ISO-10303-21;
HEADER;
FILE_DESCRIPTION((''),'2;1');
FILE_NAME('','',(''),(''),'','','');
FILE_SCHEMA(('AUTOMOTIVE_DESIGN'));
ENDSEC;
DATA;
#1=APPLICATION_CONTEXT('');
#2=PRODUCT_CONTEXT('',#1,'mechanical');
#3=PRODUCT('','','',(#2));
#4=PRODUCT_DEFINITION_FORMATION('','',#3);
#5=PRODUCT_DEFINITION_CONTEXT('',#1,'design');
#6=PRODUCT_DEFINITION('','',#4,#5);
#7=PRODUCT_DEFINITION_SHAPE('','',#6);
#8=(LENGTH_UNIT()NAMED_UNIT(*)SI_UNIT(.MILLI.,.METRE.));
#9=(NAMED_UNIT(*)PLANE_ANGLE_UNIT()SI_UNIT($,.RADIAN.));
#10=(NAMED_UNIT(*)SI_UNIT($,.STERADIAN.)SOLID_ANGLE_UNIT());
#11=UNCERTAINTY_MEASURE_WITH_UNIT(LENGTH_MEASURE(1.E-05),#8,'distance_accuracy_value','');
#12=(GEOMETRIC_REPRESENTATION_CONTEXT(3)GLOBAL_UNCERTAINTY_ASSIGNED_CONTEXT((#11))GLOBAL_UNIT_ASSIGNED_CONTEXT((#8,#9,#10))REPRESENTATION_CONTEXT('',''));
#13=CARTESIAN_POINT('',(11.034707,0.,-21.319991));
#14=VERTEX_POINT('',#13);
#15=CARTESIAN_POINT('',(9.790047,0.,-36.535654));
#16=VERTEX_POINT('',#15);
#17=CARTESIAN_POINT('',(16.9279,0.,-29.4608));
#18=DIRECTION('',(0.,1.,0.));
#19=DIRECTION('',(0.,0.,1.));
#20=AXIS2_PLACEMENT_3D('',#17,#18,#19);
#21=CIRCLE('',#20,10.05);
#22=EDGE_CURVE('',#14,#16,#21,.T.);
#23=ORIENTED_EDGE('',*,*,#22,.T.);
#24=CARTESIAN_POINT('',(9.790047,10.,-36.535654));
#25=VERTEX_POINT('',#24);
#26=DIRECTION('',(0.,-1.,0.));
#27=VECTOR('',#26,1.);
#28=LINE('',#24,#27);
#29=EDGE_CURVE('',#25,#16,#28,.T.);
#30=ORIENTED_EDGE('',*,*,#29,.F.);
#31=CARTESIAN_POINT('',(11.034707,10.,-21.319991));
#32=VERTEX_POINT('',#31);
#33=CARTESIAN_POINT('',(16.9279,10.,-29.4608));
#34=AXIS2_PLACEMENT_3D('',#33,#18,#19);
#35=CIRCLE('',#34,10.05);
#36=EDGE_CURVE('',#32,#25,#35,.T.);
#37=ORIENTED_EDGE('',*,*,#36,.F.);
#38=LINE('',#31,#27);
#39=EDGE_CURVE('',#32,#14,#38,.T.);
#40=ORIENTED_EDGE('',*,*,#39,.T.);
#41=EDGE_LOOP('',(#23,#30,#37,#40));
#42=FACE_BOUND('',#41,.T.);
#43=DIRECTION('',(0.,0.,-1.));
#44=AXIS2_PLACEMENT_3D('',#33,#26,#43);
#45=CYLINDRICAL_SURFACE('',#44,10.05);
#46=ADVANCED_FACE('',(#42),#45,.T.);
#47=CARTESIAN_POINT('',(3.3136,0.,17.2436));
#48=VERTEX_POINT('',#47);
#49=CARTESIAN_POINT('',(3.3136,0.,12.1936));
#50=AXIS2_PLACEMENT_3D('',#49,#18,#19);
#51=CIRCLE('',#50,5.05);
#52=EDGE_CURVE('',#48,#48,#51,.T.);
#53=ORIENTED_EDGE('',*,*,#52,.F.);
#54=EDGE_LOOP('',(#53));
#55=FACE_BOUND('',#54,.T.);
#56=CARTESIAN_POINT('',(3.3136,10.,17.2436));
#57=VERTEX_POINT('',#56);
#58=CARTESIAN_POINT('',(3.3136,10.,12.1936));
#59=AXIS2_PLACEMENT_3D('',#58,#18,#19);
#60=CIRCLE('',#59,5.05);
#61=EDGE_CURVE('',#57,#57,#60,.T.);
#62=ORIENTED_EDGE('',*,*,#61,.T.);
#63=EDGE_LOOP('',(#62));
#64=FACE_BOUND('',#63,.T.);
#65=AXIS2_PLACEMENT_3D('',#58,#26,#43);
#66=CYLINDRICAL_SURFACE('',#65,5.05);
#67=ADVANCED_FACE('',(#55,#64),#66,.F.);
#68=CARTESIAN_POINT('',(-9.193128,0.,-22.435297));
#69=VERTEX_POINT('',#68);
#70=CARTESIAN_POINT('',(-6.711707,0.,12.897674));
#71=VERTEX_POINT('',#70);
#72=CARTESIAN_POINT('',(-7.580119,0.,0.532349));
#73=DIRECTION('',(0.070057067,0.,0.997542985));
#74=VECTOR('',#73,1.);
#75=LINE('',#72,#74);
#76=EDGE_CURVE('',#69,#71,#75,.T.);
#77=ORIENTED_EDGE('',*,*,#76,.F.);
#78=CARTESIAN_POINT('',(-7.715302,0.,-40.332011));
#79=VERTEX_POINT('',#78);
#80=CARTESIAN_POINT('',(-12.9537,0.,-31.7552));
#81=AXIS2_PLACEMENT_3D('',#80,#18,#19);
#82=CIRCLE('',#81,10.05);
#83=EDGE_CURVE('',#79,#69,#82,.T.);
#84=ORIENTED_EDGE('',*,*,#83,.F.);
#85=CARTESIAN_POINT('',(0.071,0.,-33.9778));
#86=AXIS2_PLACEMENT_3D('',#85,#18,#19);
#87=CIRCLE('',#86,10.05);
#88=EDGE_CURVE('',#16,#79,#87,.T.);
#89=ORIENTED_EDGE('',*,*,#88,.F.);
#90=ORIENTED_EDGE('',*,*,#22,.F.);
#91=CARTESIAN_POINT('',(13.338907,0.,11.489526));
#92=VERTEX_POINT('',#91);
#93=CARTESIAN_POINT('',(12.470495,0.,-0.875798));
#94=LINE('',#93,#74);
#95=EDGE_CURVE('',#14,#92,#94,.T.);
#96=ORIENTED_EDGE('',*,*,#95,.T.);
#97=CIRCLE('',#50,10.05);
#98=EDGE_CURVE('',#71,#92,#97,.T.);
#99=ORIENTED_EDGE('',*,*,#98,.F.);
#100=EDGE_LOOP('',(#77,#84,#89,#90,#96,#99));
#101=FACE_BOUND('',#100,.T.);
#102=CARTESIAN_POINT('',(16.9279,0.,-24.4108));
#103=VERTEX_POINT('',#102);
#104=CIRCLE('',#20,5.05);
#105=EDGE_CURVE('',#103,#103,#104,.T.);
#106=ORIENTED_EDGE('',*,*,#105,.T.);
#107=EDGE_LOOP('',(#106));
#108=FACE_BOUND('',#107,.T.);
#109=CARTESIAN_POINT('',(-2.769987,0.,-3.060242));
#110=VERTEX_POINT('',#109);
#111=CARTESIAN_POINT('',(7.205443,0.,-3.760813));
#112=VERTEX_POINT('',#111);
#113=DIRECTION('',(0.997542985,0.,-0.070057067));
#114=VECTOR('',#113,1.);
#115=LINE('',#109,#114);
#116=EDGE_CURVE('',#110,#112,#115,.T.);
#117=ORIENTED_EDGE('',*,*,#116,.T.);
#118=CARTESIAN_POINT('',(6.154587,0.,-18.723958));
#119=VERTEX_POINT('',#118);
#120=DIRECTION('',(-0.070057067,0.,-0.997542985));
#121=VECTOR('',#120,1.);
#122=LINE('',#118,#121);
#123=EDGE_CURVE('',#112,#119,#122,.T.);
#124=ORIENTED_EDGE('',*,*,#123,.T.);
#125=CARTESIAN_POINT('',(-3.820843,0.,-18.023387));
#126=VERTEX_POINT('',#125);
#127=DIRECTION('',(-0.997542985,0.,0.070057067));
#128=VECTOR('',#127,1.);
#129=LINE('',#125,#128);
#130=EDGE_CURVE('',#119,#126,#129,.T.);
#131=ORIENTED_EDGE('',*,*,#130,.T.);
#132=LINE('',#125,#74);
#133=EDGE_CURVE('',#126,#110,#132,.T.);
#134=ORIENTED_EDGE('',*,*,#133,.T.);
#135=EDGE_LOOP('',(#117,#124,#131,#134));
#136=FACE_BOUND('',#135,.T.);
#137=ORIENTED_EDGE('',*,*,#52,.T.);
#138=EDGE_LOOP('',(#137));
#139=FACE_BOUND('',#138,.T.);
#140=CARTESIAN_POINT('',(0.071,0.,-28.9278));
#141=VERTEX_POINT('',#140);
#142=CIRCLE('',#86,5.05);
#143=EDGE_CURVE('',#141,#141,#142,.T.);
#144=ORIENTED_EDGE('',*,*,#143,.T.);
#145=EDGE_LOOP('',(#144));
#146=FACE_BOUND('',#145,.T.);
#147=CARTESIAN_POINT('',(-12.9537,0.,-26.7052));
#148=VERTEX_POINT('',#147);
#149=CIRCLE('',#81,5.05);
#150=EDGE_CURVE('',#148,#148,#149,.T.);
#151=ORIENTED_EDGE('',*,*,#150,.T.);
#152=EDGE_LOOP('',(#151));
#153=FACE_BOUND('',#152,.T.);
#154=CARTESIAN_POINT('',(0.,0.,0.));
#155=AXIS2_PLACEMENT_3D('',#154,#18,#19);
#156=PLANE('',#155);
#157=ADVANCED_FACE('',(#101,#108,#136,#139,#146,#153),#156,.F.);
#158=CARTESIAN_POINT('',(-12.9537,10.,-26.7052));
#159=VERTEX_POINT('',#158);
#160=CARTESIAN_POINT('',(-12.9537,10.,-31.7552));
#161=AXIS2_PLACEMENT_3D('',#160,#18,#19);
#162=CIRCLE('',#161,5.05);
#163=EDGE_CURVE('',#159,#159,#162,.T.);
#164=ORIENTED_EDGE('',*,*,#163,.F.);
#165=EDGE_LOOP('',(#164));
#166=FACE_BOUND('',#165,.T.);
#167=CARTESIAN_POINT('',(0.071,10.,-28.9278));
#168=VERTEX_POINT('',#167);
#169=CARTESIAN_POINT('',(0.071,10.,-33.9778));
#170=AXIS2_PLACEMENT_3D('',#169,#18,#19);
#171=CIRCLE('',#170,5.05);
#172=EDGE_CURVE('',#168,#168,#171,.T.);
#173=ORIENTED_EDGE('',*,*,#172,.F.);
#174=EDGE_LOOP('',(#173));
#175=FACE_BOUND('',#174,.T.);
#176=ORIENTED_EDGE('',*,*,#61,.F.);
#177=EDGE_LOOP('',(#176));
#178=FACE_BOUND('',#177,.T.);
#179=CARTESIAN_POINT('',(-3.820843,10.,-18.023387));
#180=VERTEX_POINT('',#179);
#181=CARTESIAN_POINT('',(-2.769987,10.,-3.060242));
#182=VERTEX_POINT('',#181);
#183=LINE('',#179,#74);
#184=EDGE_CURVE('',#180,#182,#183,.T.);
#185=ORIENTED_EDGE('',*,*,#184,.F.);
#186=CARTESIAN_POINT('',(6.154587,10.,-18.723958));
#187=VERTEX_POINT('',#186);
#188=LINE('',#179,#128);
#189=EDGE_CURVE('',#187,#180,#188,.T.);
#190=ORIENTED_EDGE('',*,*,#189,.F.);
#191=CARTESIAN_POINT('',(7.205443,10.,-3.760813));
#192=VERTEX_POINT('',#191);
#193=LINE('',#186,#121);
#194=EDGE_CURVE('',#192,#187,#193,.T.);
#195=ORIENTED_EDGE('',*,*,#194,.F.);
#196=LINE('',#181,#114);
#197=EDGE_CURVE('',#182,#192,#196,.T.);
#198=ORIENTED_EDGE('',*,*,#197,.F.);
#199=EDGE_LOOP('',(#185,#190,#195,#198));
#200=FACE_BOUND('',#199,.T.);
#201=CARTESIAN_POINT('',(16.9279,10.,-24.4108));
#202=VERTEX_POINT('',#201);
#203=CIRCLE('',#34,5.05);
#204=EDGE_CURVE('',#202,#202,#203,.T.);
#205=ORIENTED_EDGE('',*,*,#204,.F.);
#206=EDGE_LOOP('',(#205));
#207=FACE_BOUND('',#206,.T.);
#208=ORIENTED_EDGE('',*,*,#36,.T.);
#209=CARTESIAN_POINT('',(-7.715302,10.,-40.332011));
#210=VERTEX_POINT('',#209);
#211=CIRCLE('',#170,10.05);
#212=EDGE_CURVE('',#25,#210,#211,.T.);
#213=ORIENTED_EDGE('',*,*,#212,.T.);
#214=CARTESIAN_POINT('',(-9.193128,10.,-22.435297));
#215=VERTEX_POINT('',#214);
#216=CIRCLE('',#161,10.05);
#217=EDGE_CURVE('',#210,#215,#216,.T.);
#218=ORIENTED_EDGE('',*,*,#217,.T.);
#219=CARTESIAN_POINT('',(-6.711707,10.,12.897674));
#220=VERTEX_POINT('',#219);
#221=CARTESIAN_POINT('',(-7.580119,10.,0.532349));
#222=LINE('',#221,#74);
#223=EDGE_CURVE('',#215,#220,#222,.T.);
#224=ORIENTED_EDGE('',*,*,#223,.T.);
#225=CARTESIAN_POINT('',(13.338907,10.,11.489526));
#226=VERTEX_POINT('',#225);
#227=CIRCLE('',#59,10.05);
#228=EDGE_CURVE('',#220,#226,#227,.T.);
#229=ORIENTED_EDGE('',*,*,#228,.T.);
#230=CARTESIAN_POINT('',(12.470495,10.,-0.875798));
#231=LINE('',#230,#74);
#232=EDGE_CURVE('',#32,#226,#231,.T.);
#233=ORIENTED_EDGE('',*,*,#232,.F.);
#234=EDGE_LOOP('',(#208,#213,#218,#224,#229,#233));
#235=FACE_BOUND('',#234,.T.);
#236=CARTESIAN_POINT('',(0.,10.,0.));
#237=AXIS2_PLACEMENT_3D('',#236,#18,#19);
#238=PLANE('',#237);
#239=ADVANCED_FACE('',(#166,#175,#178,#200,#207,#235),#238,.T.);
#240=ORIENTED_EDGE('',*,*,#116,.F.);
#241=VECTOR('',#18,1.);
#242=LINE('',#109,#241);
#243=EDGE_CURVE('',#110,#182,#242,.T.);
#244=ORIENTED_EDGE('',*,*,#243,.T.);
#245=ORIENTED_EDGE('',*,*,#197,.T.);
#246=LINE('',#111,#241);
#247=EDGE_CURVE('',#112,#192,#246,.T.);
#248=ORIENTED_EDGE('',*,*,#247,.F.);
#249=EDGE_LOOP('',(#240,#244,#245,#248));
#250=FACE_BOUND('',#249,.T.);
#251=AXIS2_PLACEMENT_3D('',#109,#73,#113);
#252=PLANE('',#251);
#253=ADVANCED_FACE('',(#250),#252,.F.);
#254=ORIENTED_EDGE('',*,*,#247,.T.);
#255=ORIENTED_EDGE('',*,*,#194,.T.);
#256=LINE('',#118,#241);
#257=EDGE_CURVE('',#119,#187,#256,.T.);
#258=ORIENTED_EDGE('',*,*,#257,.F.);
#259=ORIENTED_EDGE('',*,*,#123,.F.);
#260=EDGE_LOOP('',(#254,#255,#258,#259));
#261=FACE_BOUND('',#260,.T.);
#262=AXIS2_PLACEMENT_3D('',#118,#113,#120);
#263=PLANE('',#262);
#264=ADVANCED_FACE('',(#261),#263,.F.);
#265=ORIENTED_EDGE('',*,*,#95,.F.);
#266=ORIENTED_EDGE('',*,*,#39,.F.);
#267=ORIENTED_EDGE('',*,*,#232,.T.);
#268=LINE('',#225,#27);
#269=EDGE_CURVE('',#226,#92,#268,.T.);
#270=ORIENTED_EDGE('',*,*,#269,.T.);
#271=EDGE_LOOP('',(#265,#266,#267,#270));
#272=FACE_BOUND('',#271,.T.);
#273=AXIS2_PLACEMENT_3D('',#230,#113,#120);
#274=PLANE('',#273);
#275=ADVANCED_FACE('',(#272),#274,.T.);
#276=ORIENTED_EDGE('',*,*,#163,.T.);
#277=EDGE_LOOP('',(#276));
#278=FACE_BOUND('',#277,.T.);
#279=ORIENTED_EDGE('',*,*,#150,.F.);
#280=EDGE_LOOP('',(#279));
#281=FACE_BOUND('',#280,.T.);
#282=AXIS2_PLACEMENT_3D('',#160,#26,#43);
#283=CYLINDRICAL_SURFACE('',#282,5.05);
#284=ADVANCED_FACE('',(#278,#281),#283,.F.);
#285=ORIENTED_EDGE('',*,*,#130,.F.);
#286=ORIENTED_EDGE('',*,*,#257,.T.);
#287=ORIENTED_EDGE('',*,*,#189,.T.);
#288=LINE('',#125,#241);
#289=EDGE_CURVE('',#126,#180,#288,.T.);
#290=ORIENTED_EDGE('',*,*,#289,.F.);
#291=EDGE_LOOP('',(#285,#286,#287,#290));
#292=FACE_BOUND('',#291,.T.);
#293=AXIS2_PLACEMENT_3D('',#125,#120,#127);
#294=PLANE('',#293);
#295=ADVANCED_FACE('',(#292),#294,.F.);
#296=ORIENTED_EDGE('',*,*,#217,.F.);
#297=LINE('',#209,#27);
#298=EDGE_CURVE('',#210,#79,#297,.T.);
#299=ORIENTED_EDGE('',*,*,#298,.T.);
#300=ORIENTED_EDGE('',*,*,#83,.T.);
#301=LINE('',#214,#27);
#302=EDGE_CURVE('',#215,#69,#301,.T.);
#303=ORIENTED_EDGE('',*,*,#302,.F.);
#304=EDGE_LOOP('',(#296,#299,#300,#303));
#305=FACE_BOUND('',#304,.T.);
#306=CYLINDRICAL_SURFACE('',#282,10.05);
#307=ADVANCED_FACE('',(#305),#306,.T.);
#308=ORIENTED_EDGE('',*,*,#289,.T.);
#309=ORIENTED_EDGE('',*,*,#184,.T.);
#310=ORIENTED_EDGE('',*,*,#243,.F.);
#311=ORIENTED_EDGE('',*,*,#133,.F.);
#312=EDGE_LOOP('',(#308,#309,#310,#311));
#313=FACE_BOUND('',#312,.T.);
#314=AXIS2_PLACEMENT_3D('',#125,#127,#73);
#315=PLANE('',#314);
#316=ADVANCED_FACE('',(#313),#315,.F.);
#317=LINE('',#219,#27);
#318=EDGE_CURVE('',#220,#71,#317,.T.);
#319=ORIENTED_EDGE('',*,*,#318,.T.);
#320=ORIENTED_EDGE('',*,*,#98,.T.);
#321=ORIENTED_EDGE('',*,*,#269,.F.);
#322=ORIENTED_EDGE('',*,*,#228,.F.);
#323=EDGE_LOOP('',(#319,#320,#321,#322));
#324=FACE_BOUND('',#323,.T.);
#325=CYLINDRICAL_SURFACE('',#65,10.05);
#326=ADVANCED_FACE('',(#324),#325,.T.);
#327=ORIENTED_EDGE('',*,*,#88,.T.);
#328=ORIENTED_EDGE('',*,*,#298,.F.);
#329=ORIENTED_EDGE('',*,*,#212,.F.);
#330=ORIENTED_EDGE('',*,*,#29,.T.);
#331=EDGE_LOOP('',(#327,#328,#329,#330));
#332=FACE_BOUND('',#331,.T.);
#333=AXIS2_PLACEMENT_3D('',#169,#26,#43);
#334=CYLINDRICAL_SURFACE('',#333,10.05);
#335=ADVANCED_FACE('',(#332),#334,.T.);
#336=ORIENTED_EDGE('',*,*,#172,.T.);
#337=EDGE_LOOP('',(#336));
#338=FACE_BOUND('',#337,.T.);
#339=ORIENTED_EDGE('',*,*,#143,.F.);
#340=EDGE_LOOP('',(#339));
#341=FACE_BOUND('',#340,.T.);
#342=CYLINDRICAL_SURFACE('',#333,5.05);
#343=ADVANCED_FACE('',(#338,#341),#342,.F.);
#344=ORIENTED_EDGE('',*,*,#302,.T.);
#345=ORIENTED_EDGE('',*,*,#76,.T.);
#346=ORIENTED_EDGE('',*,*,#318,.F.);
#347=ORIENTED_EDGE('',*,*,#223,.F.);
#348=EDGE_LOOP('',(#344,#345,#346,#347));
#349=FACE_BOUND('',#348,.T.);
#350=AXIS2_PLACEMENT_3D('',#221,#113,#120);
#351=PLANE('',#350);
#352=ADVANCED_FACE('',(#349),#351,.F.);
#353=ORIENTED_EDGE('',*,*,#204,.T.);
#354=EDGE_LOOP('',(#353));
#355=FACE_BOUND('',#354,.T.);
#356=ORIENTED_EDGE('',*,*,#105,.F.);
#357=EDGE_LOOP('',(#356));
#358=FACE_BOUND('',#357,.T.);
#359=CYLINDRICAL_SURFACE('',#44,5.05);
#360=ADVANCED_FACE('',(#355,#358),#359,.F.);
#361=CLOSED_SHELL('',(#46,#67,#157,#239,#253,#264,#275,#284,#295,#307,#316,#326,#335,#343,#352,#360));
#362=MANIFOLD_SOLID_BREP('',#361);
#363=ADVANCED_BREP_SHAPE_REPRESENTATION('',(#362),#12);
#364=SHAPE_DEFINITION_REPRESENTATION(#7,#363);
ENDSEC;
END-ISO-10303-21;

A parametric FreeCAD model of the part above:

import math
import FreeCAD as App
import Part
import Sketcher

V = App.Vector
Q = App.Units.Quantity

doc = App.newDocument("Part")
body = doc.addObject("PartDesign::Body", "Body")

# Sketch on XZ plane
sketch1 = body.newObject("Sketcher::SketchObject", "Sketch")
sketch1.AttachmentSupport = (doc.getObject("XZ_Plane"), [""])
sketch1.MapMode = "FlatFace"
sketch1.addGeometry([
    Part.LineSegment(V(13.338907, 11.489526, 0), V(11.034707, -21.319991, 0)),  # 0
    Part.ArcOfCircle(Part.Circle(V(16.9279, -29.4608, 0), V(0, 0, 1), 10.05), math.radians(-135.253965), math.radians(125.901062)),  # 1
    Part.ArcOfCircle(Part.Circle(V(0.071, -33.9778, 0), V(0, 0, 1), 10.05), math.radians(-140.782955), math.radians(-14.744721)),  # 2
    Part.ArcOfCircle(Part.Circle(V(-12.9537, -31.7552, 0), V(0, 0, 1), 10.05), math.radians(68.025973), math.radians(301.415036)),  # 3
    Part.LineSegment(V(-9.193128, -22.435297, 0), V(-6.711707, 12.897674, 0)),  # 4
    Part.ArcOfCircle(Part.Circle(V(3.3136, 12.1936, 0), V(0, 0, 1), 10.05), math.radians(-4.017265), math.radians(175.982735)),  # 5
    Part.Circle(V(3.3136, 12.1936, 0), V(0, 0, 1), 5.05),  # 6
    Part.Circle(V(-12.9537, -31.7552, 0), V(0, 0, 1), 5.05),  # 7
    Part.Circle(V(0.071, -33.9778, 0), V(0, 0, 1), 5.05),  # 8
    Part.Circle(V(16.9279, -29.4608, 0), V(0, 0, 1), 5.05),  # 9
], False)
sketch1.addConstraint([
    Sketcher.Constraint("Coincident", 0, 2, 1, 2),
    Sketcher.Constraint("Coincident", 1, 1, 2, 2),
    Sketcher.Constraint("Coincident", 2, 1, 3, 2),
    Sketcher.Constraint("Coincident", 3, 1, 4, 1),
    Sketcher.Constraint("Tangent", 4, 2, 5, 2),
    Sketcher.Constraint("Tangent", 5, 1, 0, 1),
    Sketcher.Constraint("Coincident", 6, 3, 5, 3),
    Sketcher.Constraint("Coincident", 7, 3, 3, 3),
    Sketcher.Constraint("Coincident", 8, 3, 2, 3),
    Sketcher.Constraint("Coincident", 9, 3, 1, 3),
    Sketcher.Constraint("Equal", 1, 2),
    Sketcher.Constraint("Equal", 2, 3),
    Sketcher.Constraint("Equal", 3, 5),
    Sketcher.Constraint("Equal", 6, 7),
    Sketcher.Constraint("Equal", 7, 8),
    Sketcher.Constraint("Equal", 8, 9),
    Sketcher.Constraint("Parallel", 0, 4),
    Sketcher.Constraint("Diameter", 6, Q("10.1 mm")),
    Sketcher.Constraint("Radius", 1, Q("10.05 mm")),
    Sketcher.Constraint("DistanceX", -1, 1, 2, 3, Q("0.071 mm")),
    Sketcher.Constraint("DistanceY", 2, 3, 1, 3, Q("4.517 mm")),
    Sketcher.Constraint("DistanceX", -1, 1, 1, 3, Q("16.9279 mm")),
    Sketcher.Constraint("DistanceY", 1, 3, -1, 1, Q("29.4608 mm")),
    Sketcher.Constraint("DistanceX", 3, 3, -1, 1, Q("12.9537 mm")),
    Sketcher.Constraint("DistanceY", 3, 3, -1, 1, Q("31.7552 mm")),
    Sketcher.Constraint("DistanceX", -1, 1, 5, 3, Q("3.3136 mm")),
    Sketcher.Constraint("DistanceY", -1, 1, 5, 3, Q("12.1936 mm")),
    Sketcher.Constraint("DistanceX", 0, 2, 5, 1, Q("2.3042 mm")),
])
pad1 = body.newObject("PartDesign::Pad", "Pad")
pad1.Profile = sketch1
pad1.Length = 10
pad1.Reversed = True

# Sketch on XZ plane
sketch2 = body.newObject("Sketcher::SketchObject", "Sketch001")
sketch2.AttachmentSupport = (doc.getObject("XZ_Plane"), [""])
sketch2.MapMode = "FlatFace"
sketch2.AttachmentOffset = App.Placement(V(0, 0, -10), App.Rotation())
sketch2.addGeometry([
    Part.LineSegment(V(6.154587, -18.723958, 0), V(-3.820843, -18.023387, 0)),
    Part.LineSegment(V(-3.820843, -18.023387, 0), V(-2.769987, -3.060242, 0)),
    Part.LineSegment(V(-2.769987, -3.060242, 0), V(7.205443, -3.760813, 0)),
    Part.LineSegment(V(7.205443, -3.760813, 0), V(6.154587, -18.723958, 0)),
], False)
sketch2.addConstraint([
    Sketcher.Constraint("Coincident", 0, 2, 1, 1),
    Sketcher.Constraint("Coincident", 1, 2, 2, 1),
    Sketcher.Constraint("Coincident", 2, 2, 3, 1),
    Sketcher.Constraint("Coincident", 3, 2, 0, 1),
    Sketcher.Constraint("Perpendicular", 0, 1),
    Sketcher.Constraint("Perpendicular", 1, 2),
    Sketcher.Constraint("Perpendicular", 2, 3),
    Sketcher.Constraint("Distance", 0, Q("10 mm")),
    Sketcher.Constraint("Distance", 1, Q("15 mm")),
    Sketcher.Constraint("DistanceX", 1, 2, 2, 2, Q("9.97543 mm")),
    Sketcher.Constraint("DistanceX", 0, 2, -1, 1, Q("3.820843 mm")),
    Sketcher.Constraint("DistanceY", 0, 2, -1, 1, Q("18.023387 mm")),
])
pocket1 = body.newObject("PartDesign::Pocket", "Pocket")
pocket1.Profile = sketch2
pocket1.Length = 10
pocket1.Reversed = True

doc.recompute()
